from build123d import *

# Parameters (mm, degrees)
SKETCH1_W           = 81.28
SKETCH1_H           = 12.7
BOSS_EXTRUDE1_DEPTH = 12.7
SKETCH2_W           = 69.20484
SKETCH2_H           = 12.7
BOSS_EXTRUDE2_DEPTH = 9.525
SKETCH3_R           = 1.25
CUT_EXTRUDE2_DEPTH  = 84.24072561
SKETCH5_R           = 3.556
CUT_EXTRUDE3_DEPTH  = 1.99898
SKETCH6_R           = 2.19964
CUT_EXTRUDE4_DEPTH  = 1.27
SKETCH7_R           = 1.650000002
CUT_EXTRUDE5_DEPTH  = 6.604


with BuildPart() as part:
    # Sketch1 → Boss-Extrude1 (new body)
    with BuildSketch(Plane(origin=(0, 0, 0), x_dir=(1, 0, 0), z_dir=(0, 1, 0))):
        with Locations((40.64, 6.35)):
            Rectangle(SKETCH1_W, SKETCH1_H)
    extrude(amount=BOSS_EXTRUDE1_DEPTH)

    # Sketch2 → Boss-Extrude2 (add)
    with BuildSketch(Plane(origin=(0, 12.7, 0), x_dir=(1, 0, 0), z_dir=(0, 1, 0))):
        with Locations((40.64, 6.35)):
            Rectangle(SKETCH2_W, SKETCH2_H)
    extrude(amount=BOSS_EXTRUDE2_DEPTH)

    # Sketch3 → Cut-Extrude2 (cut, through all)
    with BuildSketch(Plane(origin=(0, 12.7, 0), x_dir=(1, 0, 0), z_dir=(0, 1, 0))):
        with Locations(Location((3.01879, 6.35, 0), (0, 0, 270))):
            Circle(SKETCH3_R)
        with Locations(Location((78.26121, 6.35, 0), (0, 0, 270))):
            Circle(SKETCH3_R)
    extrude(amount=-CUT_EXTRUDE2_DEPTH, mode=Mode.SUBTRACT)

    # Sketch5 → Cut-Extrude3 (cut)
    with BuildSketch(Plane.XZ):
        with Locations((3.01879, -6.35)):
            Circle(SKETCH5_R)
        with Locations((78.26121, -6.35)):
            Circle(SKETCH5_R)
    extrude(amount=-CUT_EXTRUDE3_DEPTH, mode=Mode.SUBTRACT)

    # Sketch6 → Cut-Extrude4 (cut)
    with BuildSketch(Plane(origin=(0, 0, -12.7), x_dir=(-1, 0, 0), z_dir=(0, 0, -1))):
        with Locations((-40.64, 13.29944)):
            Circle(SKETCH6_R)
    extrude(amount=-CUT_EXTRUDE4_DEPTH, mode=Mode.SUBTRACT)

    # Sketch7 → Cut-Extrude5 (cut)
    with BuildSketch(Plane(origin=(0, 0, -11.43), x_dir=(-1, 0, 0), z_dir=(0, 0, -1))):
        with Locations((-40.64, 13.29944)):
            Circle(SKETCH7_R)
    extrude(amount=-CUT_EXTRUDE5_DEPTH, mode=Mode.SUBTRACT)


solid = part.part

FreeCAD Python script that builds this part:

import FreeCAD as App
import Part
import Sketcher
Q = App.Units.Quantity


def add_polygon(sketch, points):
    """Adds a closed chain of lines whose ends are joined by coincident constraints."""
    first, n = sketch.GeometryCount, len(points)
    for a, b in zip(points, points[1:] + points[:1]):
        sketch.addGeometry(Part.LineSegment(App.Vector(*a, 0), App.Vector(*b, 0)), False)
    for i in range(n):
        sketch.addConstraint(Sketcher.Constraint("Coincident", first + i, 2, first + (i + 1) % n, 1))

doc = App.newDocument("Part")
params = doc.addObject("Spreadsheet::Sheet", "Params")
for row, (alias, value) in enumerate([
    ("sketch1_width", "3.2 in"),
    ("sketch1_height", "0.5 in"),
    ("pad1_length", "0.5 in"),
    ("sketch2_height", "0.5 in"),
    ("pad2_length", "0.375 in"),
    ("sketch4_diameter", "0.28 in"),
    ("pocket2_length", "0.0787 in"),
    ("pocket3_length", "0.05 in"),
    ("pocket4_length", "0.26 in"),
], start=1):
    params.set(f"A{row}", alias)
    params.set(f"B{row}", "=" + value)
    params.setAlias(f"B{row}", alias)

body = doc.addObject("PartDesign::Body", "Body")

# Sketch on XZ plane
sketch1 = body.newObject("Sketcher::SketchObject", "Sketch")
sketch1.AttachmentSupport = (doc.getObject("XZ_Plane"), [""])
sketch1.MapMode = "FlatFace"
add_polygon(sketch1, [(0, -13), (0, 0), (81, 0), (81, -13)])  # lines 0-3
sketch1.addConstraint(Sketcher.Constraint("Vertical", 0))
sketch1.addConstraint(Sketcher.Constraint("Horizontal", 1))
sketch1.addConstraint(Sketcher.Constraint("Vertical", 2))
sketch1.addConstraint(Sketcher.Constraint("Horizontal", 3))
sketch1.addConstraint(Sketcher.Constraint("Coincident", 0, 2, -1, 1))
sketch1.addConstraint(Sketcher.Constraint("DistanceX", 1, 1, 1, 2, Q("3.2 in")))
sketch1.addConstraint(Sketcher.Constraint("DistanceY", 0, 1, 0, 2, Q("0.5 in")))
sketch1.setExpression("Constraints[9]", "Params.sketch1_width")
sketch1.setExpression("Constraints[10]", "Params.sketch1_height")
pad1 = body.newObject("PartDesign::Pad", "Pad")
pad1.Profile = sketch1
pad1.setExpression("Length", "Params.pad1_length")
pad1.Reversed = True

# Sketch on XZ plane
sketch2 = body.newObject("Sketcher::SketchObject", "Sketch001")
sketch2.AttachmentSupport = (doc.getObject("XZ_Plane"), [""])
sketch2.MapMode = "FlatFace"
sketch2.AttachmentOffset = App.Placement(App.Vector(0, 0, -0.5 * 25.4), App.Rotation())
add_polygon(sketch2, [(6, -13), (6, 0), (75, 0), (75, -13)])  # lines 0-3
sketch2.addConstraint(Sketcher.Constraint("Vertical", 0))
sketch2.addConstraint(Sketcher.Constraint("Horizontal", 1))
sketch2.addConstraint(Sketcher.Constraint("Vertical", 2))
sketch2.addConstraint(Sketcher.Constraint("Horizontal", 3))
sketch2.addConstraint(Sketcher.Constraint("PointOnObject", 0, 2, -1))
sketch2.addConstraint(Sketcher.Constraint("DistanceY", 0, 1, 0, 2, Q("0.5 in")))
sketch2.addConstraint(Sketcher.Constraint("DistanceX", 1, 1, 1, 2, Q("2.7246 in")))
sketch2.addConstraint(Sketcher.Constraint("DistanceX", -1, 1, 0, 2, Q("0.2377 in")))
sketch2.setExpression("Constraints[9]", "Params.sketch2_height")
pad2 = body.newObject("PartDesign::Pad", "Pad001")
pad2.Profile = sketch2
pad2.setExpression("Length", "Params.pad2_length")
pad2.Reversed = True

# Sketch on XZ plane
sketch3 = body.newObject("Sketcher::SketchObject", "Sketch002")
sketch3.AttachmentSupport = (doc.getObject("XZ_Plane"), [""])
sketch3.MapMode = "FlatFace"
sketch3.AttachmentOffset = App.Placement(App.Vector(0, 0, -0.5 * 25.4), App.Rotation())
sketch3.addGeometry(Part.Circle(App.Vector(3, -6.3, 0), App.Vector(0, 0, 1), 1.2), False)
sketch3.addGeometry(Part.Circle(App.Vector(78.3, -6.3, 0), App.Vector(0, 0, 1), 1.2), False)
sketch3.addConstraint(Sketcher.Constraint("Equal", 0, 1))
sketch3.addConstraint(Sketcher.Constraint("Horizontal", 0, 3, 1, 3))
sketch3.addConstraint(Sketcher.Constraint("Diameter", 0, 2.5))
sketch3.addConstraint(Sketcher.Constraint("DistanceY", 0, 3, -1, 1, Q("0.25 in")))
sketch3.addConstraint(Sketcher.Constraint("DistanceX", 0, 3, 1, 3, Q("2.9623 in")))
sketch3.addConstraint(Sketcher.Constraint("DistanceX", -1, 1, 0, 3, 3.01879))
pocket1 = body.newObject("PartDesign::Pocket", "Pocket")
pocket1.Profile = sketch3
pocket1.Type = "ThroughAll"
pocket1.Reversed = True

# Sketch on XZ plane
sketch4 = body.newObject("Sketcher::SketchObject", "Sketch003")
sketch4.AttachmentSupport = (doc.getObject("XZ_Plane"), [""])
sketch4.MapMode = "FlatFace"
sketch4.addGeometry(Part.Circle(App.Vector(3, -6.3, 0), App.Vector(0, 0, 1), 3.6), False)
sketch4.addGeometry(Part.Circle(App.Vector(78.3, -6.3, 0), App.Vector(0, 0, 1), 3.6), False)
sketch4.addConstraint(Sketcher.Constraint("Equal", 0, 1))
sketch4.addConstraint(Sketcher.Constraint("Horizontal", 0, 3, 1, 3))
sketch4.addConstraint(Sketcher.Constraint("Diameter", 0, Q("0.28 in")))
sketch4.addConstraint(Sketcher.Constraint("DistanceY", 0, 3, -1, 1, Q("0.25 in")))
sketch4.addConstraint(Sketcher.Constraint("DistanceX", 0, 3, 1, 3, Q("2.9623 in")))
sketch4.addConstraint(Sketcher.Constraint("DistanceX", -1, 1, 0, 3, 3.01879))
sketch4.setExpression("Constraints[2]", "Params.sketch4_diameter")
pocket2 = body.newObject("PartDesign::Pocket", "Pocket001")
pocket2.Profile = sketch4
pocket2.setExpression("Length", "Params.pocket2_length")

# Sketch on XY plane
sketch5 = body.newObject("Sketcher::SketchObject", "Sketch004")
sketch5.AttachmentSupport = (doc.getObject("XY_Plane"), [""])
sketch5.MapMode = "FlatFace"
sketch5.AttachmentOffset = App.Placement(App.Vector(0, 0, -0.5 * 25.4), App.Rotation())
sketch5.addGeometry(Part.Circle(App.Vector(40.6, 13.3, 0), App.Vector(0, 0, 1), 2.2), False)
sketch5.addConstraint(Sketcher.Constraint("Diameter", 0, Q("0.1732 in")))
sketch5.addConstraint(Sketcher.Constraint("DistanceX", -1, 1, 0, 3, Q("1.6 in")))
sketch5.addConstraint(Sketcher.Constraint("DistanceY", -1, 1, 0, 3, Q("0.5236 in")))
pocket3 = body.newObject("PartDesign::Pocket", "Pocket002")
pocket3.Profile = sketch5
pocket3.setExpression("Length", "Params.pocket3_length")
pocket3.Reversed = True

# Sketch on XY plane
sketch6 = body.newObject("Sketcher::SketchObject", "Sketch005")
sketch6.AttachmentSupport = (doc.getObject("XY_Plane"), [""])
sketch6.MapMode = "FlatFace"
sketch6.AttachmentOffset = App.Placement(App.Vector(0, 0, -0.45 * 25.4), App.Rotation())
sketch6.addGeometry(Part.Circle(App.Vector(40.6, 13.3, 0), App.Vector(0, 0, 1), 1.7), False)
sketch6.addConstraint(Sketcher.Constraint("DistanceX", -1, 1, 0, 3, Q("1.6 in")))
sketch6.addConstraint(Sketcher.Constraint("Diameter", 0, 3.3))
sketch6.addConstraint(Sketcher.Constraint("DistanceY", -1, 1, 0, 3, Q("0.5236 in")))
pocket4 = body.newObject("PartDesign::Pocket", "Pocket003")
pocket4.Profile = sketch6
pocket4.setExpression("Length", "Params.pocket4_length")
pocket4.Reversed = True

doc.recompute()
